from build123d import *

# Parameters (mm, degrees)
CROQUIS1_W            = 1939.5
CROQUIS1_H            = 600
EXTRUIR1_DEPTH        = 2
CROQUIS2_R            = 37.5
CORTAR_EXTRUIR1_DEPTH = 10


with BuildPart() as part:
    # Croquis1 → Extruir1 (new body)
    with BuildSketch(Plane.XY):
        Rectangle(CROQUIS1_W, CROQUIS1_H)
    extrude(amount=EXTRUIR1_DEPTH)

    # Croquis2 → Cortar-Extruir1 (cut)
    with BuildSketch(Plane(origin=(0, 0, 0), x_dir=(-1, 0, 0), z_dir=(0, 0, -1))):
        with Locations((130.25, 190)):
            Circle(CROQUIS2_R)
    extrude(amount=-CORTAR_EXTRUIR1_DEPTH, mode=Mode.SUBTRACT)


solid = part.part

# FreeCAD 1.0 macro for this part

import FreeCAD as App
import Part
import Sketcher

V = App.Vector
Q = App.Units.Quantity


def add_polygon(sketch, points):
    """Adds a closed chain of lines whose ends are joined by coincident constraints."""
    first, n = sketch.GeometryCount, len(points)
    for a, b in zip(points, points[1:] + points[:1]):
        sketch.addGeometry(Part.LineSegment(App.Vector(*a, 0), App.Vector(*b, 0)), False)
    for i in range(n):
        sketch.addConstraint(Sketcher.Constraint("Coincident", first + i, 2, first + (i + 1) % n, 1))

doc = App.newDocument("Part")
body = doc.addObject("PartDesign::Body", "Body")

# Sketch on XY plane
sketch1 = doc.addObject("Sketcher::SketchObject", "Sketch")
body.addObject(sketch1)
sketch1.AttachmentSupport = (doc.XY_Plane, [""])
sketch1.MapMode = "FlatFace"
add_polygon(sketch1, [(-969.75, 300), (-969.75, -300), (969.75, -300), (969.75, 300)])  # lines 0-3
sketch1.addConstraint([
    Sketcher.Constraint("Vertical", 0),
    Sketcher.Constraint("Horizontal", 1),
    Sketcher.Constraint("Vertical", 2),
    Sketcher.Constraint("Horizontal", 3),
    Sketcher.Constraint("Symmetric", 0, 2, 2, 2, -1, 1),
    Sketcher.Constraint("DistanceY", 0, 2, 0, 1, Q("600 mm")),
    Sketcher.Constraint("DistanceX", 1, 1, 1, 2, Q("1939.5 mm")),
])
pad1 = doc.addObject("PartDesign::Pad", "Pad")
body.addObject(pad1)
pad1.Profile = sketch1
pad1.Length = 2

# Sketch on XY plane
sketch2 = doc.addObject("Sketcher::SketchObject", "Sketch001")
body.addObject(sketch2)
sketch2.AttachmentSupport = (doc.XY_Plane, [""])
sketch2.MapMode = "FlatFace"
sketch2.addGeometry(Part.Circle(V(-130.25, 190, 0), V(0, 0, 1), 37.5), False)
sketch2.addConstraint([
    Sketcher.Constraint("Diameter", 0, Q("75 mm")),
    Sketcher.Constraint("DistanceY", -1, 1, 0, 3, Q("190 mm")),
    Sketcher.Constraint("DistanceX", 0, 3, -1, 1, Q("130.25 mm")),
])
pocket1 = doc.addObject("PartDesign::Pocket", "Pocket")
body.addObject(pocket1)
pocket1.Profile = sketch2
pocket1.Length = 10
pocket1.Reversed = True

doc.recompute()
